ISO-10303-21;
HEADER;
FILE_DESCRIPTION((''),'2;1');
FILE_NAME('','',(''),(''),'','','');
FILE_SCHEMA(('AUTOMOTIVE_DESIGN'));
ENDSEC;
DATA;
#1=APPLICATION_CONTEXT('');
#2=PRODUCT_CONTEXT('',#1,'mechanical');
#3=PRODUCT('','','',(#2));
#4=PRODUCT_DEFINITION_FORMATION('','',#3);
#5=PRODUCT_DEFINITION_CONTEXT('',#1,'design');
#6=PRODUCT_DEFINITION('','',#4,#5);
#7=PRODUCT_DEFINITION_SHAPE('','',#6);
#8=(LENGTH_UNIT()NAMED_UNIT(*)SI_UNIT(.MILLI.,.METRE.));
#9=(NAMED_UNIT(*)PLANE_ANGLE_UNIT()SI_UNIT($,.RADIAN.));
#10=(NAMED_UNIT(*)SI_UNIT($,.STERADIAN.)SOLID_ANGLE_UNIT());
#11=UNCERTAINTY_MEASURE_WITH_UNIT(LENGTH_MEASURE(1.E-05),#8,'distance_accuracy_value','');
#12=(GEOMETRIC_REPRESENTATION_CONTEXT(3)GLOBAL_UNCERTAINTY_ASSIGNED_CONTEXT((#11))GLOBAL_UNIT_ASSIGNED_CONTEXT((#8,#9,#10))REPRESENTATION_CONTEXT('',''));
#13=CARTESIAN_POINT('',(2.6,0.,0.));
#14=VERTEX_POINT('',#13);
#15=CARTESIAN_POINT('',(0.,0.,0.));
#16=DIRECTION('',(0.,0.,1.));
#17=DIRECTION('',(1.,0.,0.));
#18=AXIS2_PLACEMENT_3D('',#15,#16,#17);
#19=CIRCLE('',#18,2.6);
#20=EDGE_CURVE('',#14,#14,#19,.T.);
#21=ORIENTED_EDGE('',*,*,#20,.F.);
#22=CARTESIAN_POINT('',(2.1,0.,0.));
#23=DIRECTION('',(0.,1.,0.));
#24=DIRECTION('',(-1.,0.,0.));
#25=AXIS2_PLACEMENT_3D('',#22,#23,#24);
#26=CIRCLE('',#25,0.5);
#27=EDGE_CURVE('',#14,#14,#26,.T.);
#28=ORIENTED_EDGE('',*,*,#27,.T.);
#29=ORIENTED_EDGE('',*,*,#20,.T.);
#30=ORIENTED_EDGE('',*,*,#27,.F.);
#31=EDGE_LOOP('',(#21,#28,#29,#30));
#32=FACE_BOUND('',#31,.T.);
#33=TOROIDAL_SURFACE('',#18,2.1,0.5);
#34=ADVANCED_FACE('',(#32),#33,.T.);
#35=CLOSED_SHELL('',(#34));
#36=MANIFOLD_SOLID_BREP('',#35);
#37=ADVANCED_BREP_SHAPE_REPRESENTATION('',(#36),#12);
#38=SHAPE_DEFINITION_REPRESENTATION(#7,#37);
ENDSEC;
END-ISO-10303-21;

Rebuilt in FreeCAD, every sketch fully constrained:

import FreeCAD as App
import Part
import Sketcher
Q = App.Units.Quantity

doc = App.newDocument("Part")
body = doc.addObject("PartDesign::Body", "Body")

sketch1 = body.newObject("Sketcher::SketchObject", "Sketch")
sketch1.AttachmentSupport = (doc.getObject("XZ_Plane"), [""])
sketch1.MapMode = "FlatFace"
sketch1.addGeometry(Part.Circle(App.Vector(2.1, 0, 0), App.Vector(0, 0, 1), 0.5), False)
sketch1.addConstraint(Sketcher.Constraint("PointOnObject", 0, 3, -1))
sketch1.addConstraint(Sketcher.Constraint("Diameter", 0, Q("1 mm")))
sketch1.addConstraint(Sketcher.Constraint("DistanceX", -1, 1, 0, 3, Q("2.1 mm")))

sketch2 = body.newObject("Sketcher::SketchObject", "Sketch001")
sketch2.AttachmentSupport = (doc.getObject("XY_Plane"), [""])
sketch2.MapMode = "FlatFace"
sketch2.addGeometry(Part.Circle(App.Vector(0, 0, 0), App.Vector(0, 0, 1), 2.1), False)
sketch2.addConstraint(Sketcher.Constraint("Coincident", 0, 3, -1, 1))
sketch2.addConstraint(Sketcher.Constraint("Diameter", 0, Q("4.2 mm")))
doc.recompute()

additivepipe = body.newObject("PartDesign::AdditivePipe", "AdditivePipe")
additivepipe.Profile = sketch1
additivepipe.Spine = (sketch2, ["Edge1"])

doc.recompute()
